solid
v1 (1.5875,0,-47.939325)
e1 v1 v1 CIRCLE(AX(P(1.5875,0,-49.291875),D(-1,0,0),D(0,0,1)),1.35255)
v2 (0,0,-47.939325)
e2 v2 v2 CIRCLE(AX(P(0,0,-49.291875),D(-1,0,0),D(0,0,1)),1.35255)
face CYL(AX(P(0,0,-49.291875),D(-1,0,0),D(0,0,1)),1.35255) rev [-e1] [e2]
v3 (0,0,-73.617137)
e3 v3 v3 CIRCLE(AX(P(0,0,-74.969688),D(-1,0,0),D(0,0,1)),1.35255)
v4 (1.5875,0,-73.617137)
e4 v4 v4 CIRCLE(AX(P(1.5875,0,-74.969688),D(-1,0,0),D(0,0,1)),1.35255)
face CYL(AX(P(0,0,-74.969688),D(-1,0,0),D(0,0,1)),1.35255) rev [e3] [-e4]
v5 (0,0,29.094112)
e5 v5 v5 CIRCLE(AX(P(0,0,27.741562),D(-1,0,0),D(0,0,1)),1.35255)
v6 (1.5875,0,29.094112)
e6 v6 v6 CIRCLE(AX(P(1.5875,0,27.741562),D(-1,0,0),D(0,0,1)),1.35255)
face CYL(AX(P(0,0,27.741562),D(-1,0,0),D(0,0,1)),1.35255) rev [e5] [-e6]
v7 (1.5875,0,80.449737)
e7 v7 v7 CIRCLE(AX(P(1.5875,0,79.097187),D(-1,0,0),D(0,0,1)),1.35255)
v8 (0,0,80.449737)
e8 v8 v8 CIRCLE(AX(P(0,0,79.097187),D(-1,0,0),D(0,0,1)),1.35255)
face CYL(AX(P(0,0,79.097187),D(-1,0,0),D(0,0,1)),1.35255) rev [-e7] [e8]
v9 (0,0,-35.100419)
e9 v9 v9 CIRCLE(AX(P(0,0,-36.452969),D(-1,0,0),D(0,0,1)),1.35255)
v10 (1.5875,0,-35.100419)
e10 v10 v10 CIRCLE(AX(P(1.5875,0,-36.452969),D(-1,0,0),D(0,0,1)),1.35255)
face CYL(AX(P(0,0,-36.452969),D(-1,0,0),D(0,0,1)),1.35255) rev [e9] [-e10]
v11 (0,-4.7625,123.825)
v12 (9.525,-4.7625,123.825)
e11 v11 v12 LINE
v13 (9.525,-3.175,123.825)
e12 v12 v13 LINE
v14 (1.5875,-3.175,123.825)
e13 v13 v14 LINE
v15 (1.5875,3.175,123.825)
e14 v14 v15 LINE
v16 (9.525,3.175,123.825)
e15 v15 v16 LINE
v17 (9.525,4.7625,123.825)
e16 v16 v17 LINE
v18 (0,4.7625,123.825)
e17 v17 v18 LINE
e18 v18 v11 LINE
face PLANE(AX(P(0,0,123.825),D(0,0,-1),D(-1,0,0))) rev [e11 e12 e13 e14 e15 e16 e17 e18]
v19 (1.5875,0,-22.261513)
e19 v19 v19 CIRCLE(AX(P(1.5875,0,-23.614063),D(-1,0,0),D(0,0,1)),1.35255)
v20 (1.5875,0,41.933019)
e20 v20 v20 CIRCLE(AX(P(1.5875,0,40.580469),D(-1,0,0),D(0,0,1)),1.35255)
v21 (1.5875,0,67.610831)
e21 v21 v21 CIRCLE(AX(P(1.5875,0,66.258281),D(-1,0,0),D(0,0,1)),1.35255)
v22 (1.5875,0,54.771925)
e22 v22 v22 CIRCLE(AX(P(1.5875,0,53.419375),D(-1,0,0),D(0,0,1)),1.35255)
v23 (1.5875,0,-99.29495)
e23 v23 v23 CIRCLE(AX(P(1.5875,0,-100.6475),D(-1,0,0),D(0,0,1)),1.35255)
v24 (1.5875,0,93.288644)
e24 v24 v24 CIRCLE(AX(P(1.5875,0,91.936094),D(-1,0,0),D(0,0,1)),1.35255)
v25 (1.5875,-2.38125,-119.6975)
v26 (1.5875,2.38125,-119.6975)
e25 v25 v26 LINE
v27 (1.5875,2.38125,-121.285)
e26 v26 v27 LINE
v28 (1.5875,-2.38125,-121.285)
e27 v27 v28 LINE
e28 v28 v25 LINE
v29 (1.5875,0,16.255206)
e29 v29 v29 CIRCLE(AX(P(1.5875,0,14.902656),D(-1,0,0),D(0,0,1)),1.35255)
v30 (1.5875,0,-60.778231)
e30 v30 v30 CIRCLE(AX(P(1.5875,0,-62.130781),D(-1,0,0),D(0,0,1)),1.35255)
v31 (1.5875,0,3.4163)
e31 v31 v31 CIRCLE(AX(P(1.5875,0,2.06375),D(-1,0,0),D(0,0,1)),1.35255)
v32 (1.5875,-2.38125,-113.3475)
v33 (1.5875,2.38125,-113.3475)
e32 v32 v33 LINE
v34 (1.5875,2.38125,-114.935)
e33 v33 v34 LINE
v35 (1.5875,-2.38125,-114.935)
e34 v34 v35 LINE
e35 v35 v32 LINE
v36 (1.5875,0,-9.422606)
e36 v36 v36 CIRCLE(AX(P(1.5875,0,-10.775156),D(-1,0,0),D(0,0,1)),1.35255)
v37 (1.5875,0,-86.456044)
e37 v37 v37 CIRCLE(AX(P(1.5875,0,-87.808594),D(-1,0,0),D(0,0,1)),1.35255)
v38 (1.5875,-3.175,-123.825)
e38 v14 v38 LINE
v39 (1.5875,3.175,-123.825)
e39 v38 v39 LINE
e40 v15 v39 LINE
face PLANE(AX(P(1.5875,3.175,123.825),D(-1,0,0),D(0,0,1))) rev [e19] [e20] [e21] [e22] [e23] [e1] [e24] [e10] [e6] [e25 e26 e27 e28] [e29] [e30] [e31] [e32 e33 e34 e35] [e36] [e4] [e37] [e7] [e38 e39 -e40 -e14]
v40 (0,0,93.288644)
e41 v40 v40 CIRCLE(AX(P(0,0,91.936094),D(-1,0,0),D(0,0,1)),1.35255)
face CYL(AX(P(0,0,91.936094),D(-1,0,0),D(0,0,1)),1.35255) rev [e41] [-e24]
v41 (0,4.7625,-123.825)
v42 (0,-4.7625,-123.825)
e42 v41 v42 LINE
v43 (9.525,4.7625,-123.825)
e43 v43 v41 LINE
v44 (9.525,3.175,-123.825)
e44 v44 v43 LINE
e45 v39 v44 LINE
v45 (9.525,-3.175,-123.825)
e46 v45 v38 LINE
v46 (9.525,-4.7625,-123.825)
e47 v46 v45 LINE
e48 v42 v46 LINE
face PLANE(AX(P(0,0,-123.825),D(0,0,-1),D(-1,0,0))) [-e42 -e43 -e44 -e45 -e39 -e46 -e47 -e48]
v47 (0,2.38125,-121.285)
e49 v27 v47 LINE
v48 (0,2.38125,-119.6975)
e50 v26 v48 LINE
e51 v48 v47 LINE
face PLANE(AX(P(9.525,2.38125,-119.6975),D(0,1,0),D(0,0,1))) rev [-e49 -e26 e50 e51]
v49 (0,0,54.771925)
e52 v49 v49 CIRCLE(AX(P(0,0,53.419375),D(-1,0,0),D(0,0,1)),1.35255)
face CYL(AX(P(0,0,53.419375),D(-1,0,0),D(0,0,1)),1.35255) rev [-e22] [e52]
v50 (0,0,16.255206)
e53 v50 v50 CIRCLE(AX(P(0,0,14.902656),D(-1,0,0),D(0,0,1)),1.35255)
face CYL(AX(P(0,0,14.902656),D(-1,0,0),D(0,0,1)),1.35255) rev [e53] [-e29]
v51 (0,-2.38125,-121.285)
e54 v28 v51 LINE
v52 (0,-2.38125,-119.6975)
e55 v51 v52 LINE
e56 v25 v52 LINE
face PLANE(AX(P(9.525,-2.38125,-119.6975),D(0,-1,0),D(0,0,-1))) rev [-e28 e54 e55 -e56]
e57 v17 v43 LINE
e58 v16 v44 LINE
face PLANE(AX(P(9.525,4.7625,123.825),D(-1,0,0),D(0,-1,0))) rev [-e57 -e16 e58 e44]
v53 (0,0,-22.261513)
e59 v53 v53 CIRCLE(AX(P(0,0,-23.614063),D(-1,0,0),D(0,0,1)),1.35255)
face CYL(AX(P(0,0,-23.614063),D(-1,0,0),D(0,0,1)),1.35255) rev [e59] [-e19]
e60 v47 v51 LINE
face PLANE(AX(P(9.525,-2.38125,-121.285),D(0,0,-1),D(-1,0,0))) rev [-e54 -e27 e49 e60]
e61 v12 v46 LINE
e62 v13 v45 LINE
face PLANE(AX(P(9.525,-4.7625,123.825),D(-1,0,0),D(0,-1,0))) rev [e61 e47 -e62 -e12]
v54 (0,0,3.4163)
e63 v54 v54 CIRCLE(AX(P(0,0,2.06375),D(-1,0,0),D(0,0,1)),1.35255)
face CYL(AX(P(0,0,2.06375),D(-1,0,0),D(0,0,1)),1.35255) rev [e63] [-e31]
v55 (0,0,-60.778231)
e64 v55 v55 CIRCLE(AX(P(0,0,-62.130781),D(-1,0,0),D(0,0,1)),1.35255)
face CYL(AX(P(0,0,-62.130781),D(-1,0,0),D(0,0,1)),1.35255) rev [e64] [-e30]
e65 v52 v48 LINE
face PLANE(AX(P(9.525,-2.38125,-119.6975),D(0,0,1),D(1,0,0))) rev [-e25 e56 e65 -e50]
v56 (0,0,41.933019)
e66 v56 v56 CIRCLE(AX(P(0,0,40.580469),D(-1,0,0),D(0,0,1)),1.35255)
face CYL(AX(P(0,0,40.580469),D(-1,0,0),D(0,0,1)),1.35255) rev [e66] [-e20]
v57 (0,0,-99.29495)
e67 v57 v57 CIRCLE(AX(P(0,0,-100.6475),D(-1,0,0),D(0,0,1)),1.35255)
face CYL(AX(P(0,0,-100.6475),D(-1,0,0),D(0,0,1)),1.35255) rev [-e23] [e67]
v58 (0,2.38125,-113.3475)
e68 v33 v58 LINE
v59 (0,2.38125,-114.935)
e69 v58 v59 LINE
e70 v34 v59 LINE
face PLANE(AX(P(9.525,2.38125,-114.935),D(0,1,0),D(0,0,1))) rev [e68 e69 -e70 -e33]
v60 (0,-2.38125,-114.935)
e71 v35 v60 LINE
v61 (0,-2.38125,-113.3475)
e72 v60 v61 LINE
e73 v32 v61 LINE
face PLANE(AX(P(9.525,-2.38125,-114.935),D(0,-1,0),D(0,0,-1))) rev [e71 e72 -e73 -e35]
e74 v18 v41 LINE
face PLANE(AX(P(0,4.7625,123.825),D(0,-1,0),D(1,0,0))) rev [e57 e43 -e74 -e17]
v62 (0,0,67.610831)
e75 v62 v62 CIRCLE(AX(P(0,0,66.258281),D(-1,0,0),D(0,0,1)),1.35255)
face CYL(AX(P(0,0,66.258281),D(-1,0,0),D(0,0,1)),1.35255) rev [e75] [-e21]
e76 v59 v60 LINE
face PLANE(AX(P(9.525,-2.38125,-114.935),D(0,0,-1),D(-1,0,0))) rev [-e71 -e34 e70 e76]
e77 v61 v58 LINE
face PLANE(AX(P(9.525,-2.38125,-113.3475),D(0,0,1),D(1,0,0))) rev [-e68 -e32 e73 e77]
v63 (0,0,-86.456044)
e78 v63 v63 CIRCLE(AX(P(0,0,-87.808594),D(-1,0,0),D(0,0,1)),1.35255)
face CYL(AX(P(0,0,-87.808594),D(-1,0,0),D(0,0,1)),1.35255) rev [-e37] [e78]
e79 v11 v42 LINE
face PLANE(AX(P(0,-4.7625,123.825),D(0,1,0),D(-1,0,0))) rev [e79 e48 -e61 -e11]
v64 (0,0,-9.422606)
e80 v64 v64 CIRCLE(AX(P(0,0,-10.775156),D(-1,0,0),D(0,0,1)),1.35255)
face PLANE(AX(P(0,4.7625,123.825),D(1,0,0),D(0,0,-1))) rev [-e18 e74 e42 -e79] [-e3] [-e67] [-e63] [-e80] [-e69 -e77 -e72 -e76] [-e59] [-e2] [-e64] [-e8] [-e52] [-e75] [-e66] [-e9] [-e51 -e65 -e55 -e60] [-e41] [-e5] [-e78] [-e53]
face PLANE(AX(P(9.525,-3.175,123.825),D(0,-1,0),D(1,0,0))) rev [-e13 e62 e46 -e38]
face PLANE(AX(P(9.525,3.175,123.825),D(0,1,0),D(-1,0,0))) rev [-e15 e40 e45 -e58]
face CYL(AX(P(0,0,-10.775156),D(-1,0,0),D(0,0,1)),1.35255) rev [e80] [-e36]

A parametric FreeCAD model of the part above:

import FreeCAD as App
import Part
import Sketcher
Q = App.Units.Quantity

doc = App.newDocument("Part")
body = doc.addObject("PartDesign::Body", "Body")

# Sketch on XY plane
sketch1 = doc.addObject("Sketcher::SketchObject", "Sketch")
body.addObject(sketch1)
sketch1.AttachmentSupport = (doc.XY_Plane, [""])
sketch1.MapMode = "FlatFace"
sketch1.addGeometry([
    Part.LineSegment(App.Vector(0, 4.8, 0), App.Vector(0, -4.8, 0)),  # 0
    Part.LineSegment(App.Vector(0, -4.8, 0), App.Vector(9.5, -4.8, 0)),  # 1
    Part.LineSegment(App.Vector(9.5, -4.8, 0), App.Vector(9.5, -3.2, 0)),  # 2
    Part.LineSegment(App.Vector(9.5, -3.2, 0), App.Vector(1.6, -3.2, 0)),  # 3
    Part.LineSegment(App.Vector(1.6, -3.2, 0), App.Vector(1.6, 3.2, 0)),  # 4
    Part.LineSegment(App.Vector(1.6, 3.2, 0), App.Vector(9.5, 3.2, 0)),  # 5
    Part.LineSegment(App.Vector(9.5, 3.2, 0), App.Vector(9.5, 4.8, 0)),  # 6
    Part.LineSegment(App.Vector(9.5, 4.8, 0), App.Vector(0, 4.8, 0)),  # 7
], False)
sketch1.addConstraint([
    Sketcher.Constraint("Coincident", 0, 2, 1, 1),
    Sketcher.Constraint("Coincident", 1, 2, 2, 1),
    Sketcher.Constraint("Coincident", 2, 2, 3, 1),
    Sketcher.Constraint("Coincident", 3, 2, 4, 1),
    Sketcher.Constraint("Coincident", 4, 2, 5, 1),
    Sketcher.Constraint("Coincident", 5, 2, 6, 1),
    Sketcher.Constraint("Coincident", 6, 2, 7, 1),
    Sketcher.Constraint("Coincident", 7, 2, 0, 1),
    Sketcher.Constraint("Vertical", 0),
    Sketcher.Constraint("Horizontal", 1),
    Sketcher.Constraint("Vertical", 2),
    Sketcher.Constraint("Horizontal", 3),
    Sketcher.Constraint("Vertical", 4),
    Sketcher.Constraint("Horizontal", 5),
    Sketcher.Constraint("Vertical", 6),
    Sketcher.Constraint("Horizontal", 7),
    Sketcher.Constraint("Symmetric", 0, 2, 7, 2, -1, 1),
    Sketcher.Constraint("Symmetric", 2, 2, 5, 2, -1),
    Sketcher.Constraint("Equal", 7, 0),
    Sketcher.Constraint("DistanceY", 4, 1, 4, 2, Q("0.25 in")),
    Sketcher.Constraint("DistanceX", 1, 1, 1, 2, Q("0.375 in")),
    Sketcher.Constraint("DistanceX", 3, 2, 3, 1, Q("0.3125 in")),
])
pad1 = doc.addObject("PartDesign::Pad", "Pad")
body.addObject(pad1)
pad1.Profile = sketch1
pad1.Length = Q("9.75 in")
pad1.Midplane = True

# Sketch on YZ plane
sketch2 = doc.addObject("Sketcher::SketchObject", "Sketch001")
body.addObject(sketch2)
sketch2.AttachmentSupport = (doc.YZ_Plane, [""])
sketch2.MapMode = "FlatFace"
sketch2.addGeometry([
    Part.LineSegment(App.Vector(2.4, -121.3, 0), App.Vector(-2.4, -121.3, 0)),  # 0
    Part.LineSegment(App.Vector(-2.4, -121.3, 0), App.Vector(-2.4, -119.7, 0)),  # 1
    Part.LineSegment(App.Vector(-2.4, -119.7, 0), App.Vector(2.4, -119.7, 0)),  # 2
    Part.LineSegment(App.Vector(2.4, -119.7, 0), App.Vector(2.4, -121.3, 0)),  # 3
    Part.LineSegment(App.Vector(2.4, -114.9, 0), App.Vector(-2.4, -114.9, 0)),  # 4
    Part.LineSegment(App.Vector(-2.4, -114.9, 0), App.Vector(-2.4, -113.3, 0)),  # 5
    Part.LineSegment(App.Vector(-2.4, -113.3, 0), App.Vector(2.4, -113.3, 0)),  # 6
    Part.LineSegment(App.Vector(2.4, -113.3, 0), App.Vector(2.4, -114.9, 0)),  # 7
], False)
sketch2.addConstraint([
    Sketcher.Constraint("Coincident", 0, 2, 1, 1),
    Sketcher.Constraint("Coincident", 1, 2, 2, 1),
    Sketcher.Constraint("Coincident", 2, 2, 3, 1),
    Sketcher.Constraint("Coincident", 3, 2, 0, 1),
    Sketcher.Constraint("Coincident", 4, 2, 5, 1),
    Sketcher.Constraint("Coincident", 5, 2, 6, 1),
    Sketcher.Constraint("Coincident", 6, 2, 7, 1),
    Sketcher.Constraint("Coincident", 7, 2, 4, 1),
    Sketcher.Constraint("Horizontal", 0),
    Sketcher.Constraint("Vertical", 1),
    Sketcher.Constraint("Horizontal", 2),
    Sketcher.Constraint("Vertical", 3),
    Sketcher.Constraint("Horizontal", 4),
    Sketcher.Constraint("Vertical", 5),
    Sketcher.Constraint("Horizontal", 6),
    Sketcher.Constraint("Vertical", 7),
    Sketcher.Constraint("Vertical", 1, 2, 4, 2),
    Sketcher.Constraint("Vertical", 3, 2, 6, 2),
    Sketcher.Constraint("Equal", 3, 5),
    Sketcher.Constraint("DistanceX", 0, 2, 0, 1, Q("0.1875 in")),
    Sketcher.Constraint("DistanceY", 1, 1, 1, 2, Q("0.0625 in")),
    Sketcher.Constraint("DistanceY", 0, 2, 4, 2, Q("0.25 in")),
    Sketcher.Constraint("DistanceX", 0, 2, -1, 1, Q("0.09375 in")),
    Sketcher.Constraint("DistanceY", 0, 2, -1, 1, Q("4.775 in")),
])
pocket1 = doc.addObject("PartDesign::Pocket", "Pocket")
body.addObject(pocket1)
pocket1.Profile = sketch2
pocket1.Type = "ThroughAll"
pocket1.Reversed = True

# Sketch on YZ plane
sketch3 = doc.addObject("Sketcher::SketchObject", "Sketch002")
body.addObject(sketch3)
sketch3.AttachmentSupport = (doc.YZ_Plane, [""])
sketch3.MapMode = "FlatFace"
sketch3.addGeometry([
    Part.Circle(App.Vector(0, -100.6, 0), App.Vector(0, 0, 1), 1.4),  # 0
    Part.Circle(App.Vector(0, -87.8, 0), App.Vector(0, 0, 1), 1.4),  # 1
    Part.Circle(App.Vector(0, -75, 0), App.Vector(0, 0, 1), 1.4),  # 2
    Part.Circle(App.Vector(0, -62.1, 0), App.Vector(0, 0, 1), 1.4),  # 3
    Part.Circle(App.Vector(0, -49.3, 0), App.Vector(0, 0, 1), 1.4),  # 4
    Part.Circle(App.Vector(0, -36.5, 0), App.Vector(0, 0, 1), 1.4),  # 5
    Part.Circle(App.Vector(0, -23.6, 0), App.Vector(0, 0, 1), 1.4),  # 6
    Part.Circle(App.Vector(0, -10.8, 0), App.Vector(0, 0, 1), 1.4),  # 7
    Part.Circle(App.Vector(0, 2.1, 0), App.Vector(0, 0, 1), 1.4),  # 8
    Part.Circle(App.Vector(0, 14.9, 0), App.Vector(0, 0, 1), 1.4),  # 9
    Part.Circle(App.Vector(0, 27.7, 0), App.Vector(0, 0, 1), 1.4),  # 10
    Part.Circle(App.Vector(0, 40.6, 0), App.Vector(0, 0, 1), 1.4),  # 11
    Part.Circle(App.Vector(0, 53.4, 0), App.Vector(0, 0, 1), 1.4),  # 12
    Part.Circle(App.Vector(0, 66.3, 0), App.Vector(0, 0, 1), 1.4),  # 13
    Part.Circle(App.Vector(0, 79.1, 0), App.Vector(0, 0, 1), 1.4),  # 14
    Part.Circle(App.Vector(0, 91.9, 0), App.Vector(0, 0, 1), 1.4),  # 15
], False)
sketch3.addConstraint([
    Sketcher.Constraint("Equal", 0, 1),
    Sketcher.Constraint("Equal", 1, 2),
    Sketcher.Constraint("Equal", 2, 3),
    Sketcher.Constraint("Equal", 3, 4),
    Sketcher.Constraint("Equal", 4, 5),
    Sketcher.Constraint("Equal", 5, 6),
    Sketcher.Constraint("Equal", 6, 7),
    Sketcher.Constraint("Equal", 7, 8),
    Sketcher.Constraint("Equal", 8, 9),
    Sketcher.Constraint("Equal", 9, 10),
    Sketcher.Constraint("Equal", 10, 11),
    Sketcher.Constraint("Equal", 11, 12),
    Sketcher.Constraint("Equal", 12, 13),
    Sketcher.Constraint("Equal", 13, 14),
    Sketcher.Constraint("Equal", 14, 15),
    Sketcher.Constraint("PointOnObject", 0, 3, -2),
    Sketcher.Constraint("PointOnObject", 1, 3, -2),
    Sketcher.Constraint("PointOnObject", 2, 3, -2),
    Sketcher.Constraint("PointOnObject", 3, 3, -2),
    Sketcher.Constraint("PointOnObject", 4, 3, -2),
    Sketcher.Constraint("PointOnObject", 5, 3, -2),
    Sketcher.Constraint("PointOnObject", 6, 3, -2),
    Sketcher.Constraint("PointOnObject", 7, 3, -2),
    Sketcher.Constraint("PointOnObject", 8, 3, -2),
    Sketcher.Constraint("PointOnObject", 9, 3, -2),
    Sketcher.Constraint("PointOnObject", 10, 3, -2),
    Sketcher.Constraint("PointOnObject", 11, 3, -2),
    Sketcher.Constraint("PointOnObject", 12, 3, -2),
    Sketcher.Constraint("PointOnObject", 13, 3, -2),
    Sketcher.Constraint("PointOnObject", 14, 3, -2),
    Sketcher.Constraint("PointOnObject", 15, 3, -2),
    Sketcher.Constraint("Diameter", 0, Q("0.1065 in")),
    Sketcher.Constraint("DistanceY", 0, 3, -1, 1, Q("3.9625 in")),
    Sketcher.Constraint("DistanceY", 3, 3, -1, 1, Q("62.130781 mm")),
    Sketcher.Constraint("DistanceY", 5, 3, -1, 1, Q("36.452969 mm")),
    Sketcher.Constraint("DistanceY", -1, 1, 8, 3, Q("2.06375 mm")),
    Sketcher.Constraint("DistanceY", -1, 1, 11, 3, Q("40.580469 mm")),
    Sketcher.Constraint("DistanceY", -1, 1, 13, 3, Q("66.258281 mm")),
    Sketcher.Constraint("DistanceY", 1, 3, 4, 3, Q("38.516719 mm")),
    Sketcher.Constraint("DistanceY", 2, 3, 5, 3, Q("38.516719 mm")),
    Sketcher.Constraint("DistanceY", 3, 3, 6, 3, Q("38.516719 mm")),
    Sketcher.Constraint("DistanceY", 1, 3, 6, 3, Q("64.194531 mm")),
    Sketcher.Constraint("DistanceY", 4, 3, 7, 3, Q("38.516719 mm")),
    Sketcher.Constraint("DistanceY", 6, 3, 9, 3, Q("38.516719 mm")),
    Sketcher.Constraint("DistanceY", 7, 3, 10, 3, Q("38.516719 mm")),
    Sketcher.Constraint("DistanceY", 9, 3, 12, 3, Q("38.516719 mm")),
    Sketcher.Constraint("DistanceY", 11, 3, 14, 3, Q("38.516719 mm")),
    Sketcher.Constraint("DistanceY", 12, 3, 15, 3, Q("38.516719 mm")),
])
doc.recompute()
hole = doc.addObject("PartDesign::Hole", "Hole")
body.addObject(hole)
hole.Profile = sketch3
hole.ThreadType = "None"
hole.Diameter = Q("0.1065 in")
hole.DepthType = "Dimension"
hole.Depth = Q("0.37 in")
hole.DrillPoint = "Flat"
hole.Reversed = True

doc.recompute()
